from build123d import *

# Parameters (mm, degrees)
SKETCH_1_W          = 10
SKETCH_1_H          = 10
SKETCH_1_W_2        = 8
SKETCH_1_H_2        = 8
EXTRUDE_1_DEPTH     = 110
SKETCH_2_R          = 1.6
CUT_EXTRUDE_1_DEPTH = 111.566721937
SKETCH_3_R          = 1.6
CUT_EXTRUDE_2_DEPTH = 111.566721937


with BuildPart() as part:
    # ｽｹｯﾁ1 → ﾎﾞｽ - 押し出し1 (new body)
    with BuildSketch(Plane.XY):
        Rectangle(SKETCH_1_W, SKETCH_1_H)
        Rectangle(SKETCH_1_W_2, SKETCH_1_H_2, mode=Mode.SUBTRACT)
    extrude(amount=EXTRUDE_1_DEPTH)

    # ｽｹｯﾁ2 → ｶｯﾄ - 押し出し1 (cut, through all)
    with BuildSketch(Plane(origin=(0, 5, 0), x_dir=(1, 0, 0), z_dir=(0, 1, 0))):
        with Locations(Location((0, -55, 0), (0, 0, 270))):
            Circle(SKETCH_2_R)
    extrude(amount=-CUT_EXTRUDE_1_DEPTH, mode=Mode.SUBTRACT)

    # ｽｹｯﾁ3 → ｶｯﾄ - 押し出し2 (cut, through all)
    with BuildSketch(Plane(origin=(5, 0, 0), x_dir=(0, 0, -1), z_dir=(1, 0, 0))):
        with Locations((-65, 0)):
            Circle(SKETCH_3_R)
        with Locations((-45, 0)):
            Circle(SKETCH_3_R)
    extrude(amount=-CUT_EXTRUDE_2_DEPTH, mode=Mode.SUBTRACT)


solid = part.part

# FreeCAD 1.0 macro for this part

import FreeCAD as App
import Part
import Sketcher
from FreeCAD import Vector
Q = App.Units.Quantity


def add_polygon(sketch, points):
    """Adds a closed chain of lines whose ends are joined by coincident constraints."""
    first, n = sketch.GeometryCount, len(points)
    for a, b in zip(points, points[1:] + points[:1]):
        sketch.addGeometry(Part.LineSegment(App.Vector(*a, 0), App.Vector(*b, 0)), False)
    for i in range(n):
        sketch.addConstraint(Sketcher.Constraint("Coincident", first + i, 2, first + (i + 1) % n, 1))

doc = App.newDocument("Part")
params = doc.addObject("Spreadsheet::Sheet", "Params")
for row, (alias, value) in enumerate([
    ("sketch1_width", "10 mm"),
    ("sketch1_width2", "8 mm"),
    ("pad1_length", "110 mm"),
    ("sketch2_diameter", "3.2 mm"),
    ("sketch3_diameter", "3.2 mm"),
], start=1):
    params.set(f"A{row}", alias)
    params.set(f"B{row}", "=" + value)
    params.setAlias(f"B{row}", alias)

body = doc.addObject("PartDesign::Body", "Body")

# Sketch on XY plane
sketch1 = doc.addObject("Sketcher::SketchObject", "Sketch")
body.addObject(sketch1)
sketch1.AttachmentSupport = (doc.XY_Plane, [""])
sketch1.MapMode = "FlatFace"
add_polygon(sketch1, [(-5, 5), (-5, -5), (5, -5), (5, 5)])  # lines 0-3
add_polygon(sketch1, [(4, -4), (-4, -4), (-4, 4), (4, 4)])  # lines 4-7
sketch1.addConstraint([
    Sketcher.Constraint("Vertical", 0),
    Sketcher.Constraint("Horizontal", 1),
    Sketcher.Constraint("Vertical", 2),
    Sketcher.Constraint("Horizontal", 3),
    Sketcher.Constraint("Horizontal", 4),
    Sketcher.Constraint("Vertical", 5),
    Sketcher.Constraint("Horizontal", 6),
    Sketcher.Constraint("Vertical", 7),
    Sketcher.Constraint("Symmetric", 0, 2, 2, 2, -1, 1),
    Sketcher.Constraint("Symmetric", 4, 2, 6, 2, -1, 1),
    Sketcher.Constraint("Equal", 3, 0),
    Sketcher.Constraint("Equal", 6, 5),
    Sketcher.Constraint("DistanceX", 1, 1, 1, 2, Q("10 mm")),
    Sketcher.Constraint("DistanceX", 4, 2, 4, 1, Q("8 mm")),
])
sketch1.setExpression("Constraints[20]", "Params.sketch1_width")
sketch1.setExpression("Constraints[21]", "Params.sketch1_width2")
pad1 = doc.addObject("PartDesign::Pad", "Pad")
body.addObject(pad1)
pad1.Profile = sketch1
pad1.setExpression("Length", "Params.pad1_length")

# Sketch on XZ plane
sketch2 = doc.addObject("Sketcher::SketchObject", "Sketch001")
body.addObject(sketch2)
sketch2.AttachmentSupport = (doc.XZ_Plane, [""])
sketch2.MapMode = "FlatFace"
sketch2.AttachmentOffset = App.Placement(Vector(0, 0, -5), App.Rotation())
sketch2.addGeometry(Part.Circle(Vector(0, 55, 0), Vector(0, 0, 1), 1.6), False)
sketch2.addConstraint([
    Sketcher.Constraint("PointOnObject", 0, 3, -2),
    Sketcher.Constraint("Diameter", 0, Q("3.2 mm")),
    Sketcher.Constraint("DistanceY", -1, 1, 0, 3, Q("55 mm")),
])
sketch2.setExpression("Constraints[1]", "Params.sketch2_diameter")
pocket1 = doc.addObject("PartDesign::Pocket", "Pocket")
body.addObject(pocket1)
pocket1.Profile = sketch2
pocket1.Type = "ThroughAll"
pocket1.Reversed = True

# Sketch on YZ plane
sketch3 = doc.addObject("Sketcher::SketchObject", "Sketch002")
body.addObject(sketch3)
sketch3.AttachmentSupport = (doc.YZ_Plane, [""])
sketch3.MapMode = "FlatFace"
sketch3.AttachmentOffset = App.Placement(Vector(0, 0, 5), App.Rotation())
sketch3.addGeometry([
    Part.Circle(Vector(0, 65, 0), Vector(0, 0, 1), 1.6),
    Part.Circle(Vector(0, 45, 0), Vector(0, 0, 1), 1.6),
], False)
sketch3.addConstraint([
    Sketcher.Constraint("Equal", 0, 1),
    Sketcher.Constraint("PointOnObject", 0, 3, -2),
    Sketcher.Constraint("PointOnObject", 1, 3, -2),
    Sketcher.Constraint("Diameter", 0, Q("3.2 mm")),
    Sketcher.Constraint("DistanceY", -1, 1, 0, 3, Q("65 mm")),
    Sketcher.Constraint("DistanceY", -1, 1, 1, 3, Q("45 mm")),
])
sketch3.setExpression("Constraints[3]", "Params.sketch3_diameter")
pocket2 = doc.addObject("PartDesign::Pocket", "Pocket001")
body.addObject(pocket2)
pocket2.Profile = sketch3
pocket2.Type = "ThroughAll"

doc.recompute()
